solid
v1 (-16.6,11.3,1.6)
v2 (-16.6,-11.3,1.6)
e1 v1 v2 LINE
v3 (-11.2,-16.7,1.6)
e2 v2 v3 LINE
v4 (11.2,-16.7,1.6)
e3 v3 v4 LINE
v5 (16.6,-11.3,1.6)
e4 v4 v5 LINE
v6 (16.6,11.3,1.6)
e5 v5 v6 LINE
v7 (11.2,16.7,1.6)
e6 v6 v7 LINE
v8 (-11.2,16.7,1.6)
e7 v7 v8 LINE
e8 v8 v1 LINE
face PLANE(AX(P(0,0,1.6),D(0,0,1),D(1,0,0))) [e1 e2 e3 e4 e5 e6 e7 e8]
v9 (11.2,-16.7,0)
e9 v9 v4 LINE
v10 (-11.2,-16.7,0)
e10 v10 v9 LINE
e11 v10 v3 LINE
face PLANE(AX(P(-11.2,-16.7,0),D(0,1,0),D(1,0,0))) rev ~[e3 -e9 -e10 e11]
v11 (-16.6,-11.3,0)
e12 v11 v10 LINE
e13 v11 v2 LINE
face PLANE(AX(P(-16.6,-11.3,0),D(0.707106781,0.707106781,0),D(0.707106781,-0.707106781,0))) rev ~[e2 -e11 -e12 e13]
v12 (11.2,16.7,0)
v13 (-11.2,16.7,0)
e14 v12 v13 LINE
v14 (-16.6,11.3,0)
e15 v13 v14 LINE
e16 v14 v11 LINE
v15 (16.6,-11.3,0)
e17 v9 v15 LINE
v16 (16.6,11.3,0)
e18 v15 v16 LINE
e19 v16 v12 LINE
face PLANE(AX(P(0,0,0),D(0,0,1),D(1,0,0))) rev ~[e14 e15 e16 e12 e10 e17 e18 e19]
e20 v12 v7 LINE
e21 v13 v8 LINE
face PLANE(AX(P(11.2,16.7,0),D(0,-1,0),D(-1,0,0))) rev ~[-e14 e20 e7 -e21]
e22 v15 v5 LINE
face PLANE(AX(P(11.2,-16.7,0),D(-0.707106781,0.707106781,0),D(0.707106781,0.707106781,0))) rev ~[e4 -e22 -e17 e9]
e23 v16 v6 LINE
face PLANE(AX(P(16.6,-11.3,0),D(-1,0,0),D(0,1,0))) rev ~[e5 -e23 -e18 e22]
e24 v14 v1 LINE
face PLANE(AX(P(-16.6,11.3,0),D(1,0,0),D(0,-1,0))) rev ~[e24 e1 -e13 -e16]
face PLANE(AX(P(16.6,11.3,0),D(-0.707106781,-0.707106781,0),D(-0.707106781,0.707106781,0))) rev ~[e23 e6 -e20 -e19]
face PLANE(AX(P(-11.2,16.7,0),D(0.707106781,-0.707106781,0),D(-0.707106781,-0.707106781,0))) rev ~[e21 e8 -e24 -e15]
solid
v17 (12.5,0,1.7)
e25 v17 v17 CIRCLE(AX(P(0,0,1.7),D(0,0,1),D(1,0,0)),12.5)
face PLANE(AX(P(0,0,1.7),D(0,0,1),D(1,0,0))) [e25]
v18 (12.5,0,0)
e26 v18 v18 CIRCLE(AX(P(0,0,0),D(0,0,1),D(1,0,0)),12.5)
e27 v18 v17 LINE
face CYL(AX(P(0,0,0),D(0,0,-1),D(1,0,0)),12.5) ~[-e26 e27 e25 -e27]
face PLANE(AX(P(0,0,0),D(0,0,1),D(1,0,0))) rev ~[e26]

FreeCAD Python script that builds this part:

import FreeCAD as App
import Part
import Sketcher

V = App.Vector
Q = App.Units.Quantity


def add_polygon(sketch, points):
    """Adds a closed chain of lines whose ends are joined by coincident constraints."""
    first, n = sketch.GeometryCount, len(points)
    for a, b in zip(points, points[1:] + points[:1]):
        sketch.addGeometry(Part.LineSegment(App.Vector(*a, 0), App.Vector(*b, 0)), False)
    for i in range(n):
        sketch.addConstraint(Sketcher.Constraint("Coincident", first + i, 2, first + (i + 1) % n, 1))

doc = App.newDocument("Part")
body = doc.addObject("PartDesign::Body", "Body")

# Sketch on XY plane
sketch1 = body.newObject("Sketcher::SketchObject", "Sketch")
sketch1.AttachmentSupport = (doc.getObject("XY_Plane"), [""])
sketch1.MapMode = "FlatFace"
add_polygon(sketch1, [(11, 17), (-11, 17), (-17, 11), (-17, -11), (-11, -17), (11, -17), (17, -11), (17, 11)])  # lines 0-7
sketch1.addConstraint([
    Sketcher.Constraint("Horizontal", 0),
    Sketcher.Constraint("Vertical", 2),
    Sketcher.Constraint("Horizontal", 4),
    Sketcher.Constraint("Vertical", 6),
    Sketcher.Constraint("Symmetric", 0, 2, 4, 2, -1, 1),
    Sketcher.Constraint("Symmetric", 1, 2, 5, 2, -1, 1),
    Sketcher.Constraint("Perpendicular", 1, 3),
    Sketcher.Constraint("Perpendicular", 5, 7),
    Sketcher.Constraint("Horizontal", 2, 2, 5, 2),
    Sketcher.Constraint("Horizontal", 1, 2, 6, 2),
    Sketcher.Constraint("Vertical", 0, 2, 3, 2),
    Sketcher.Constraint("DistanceX", 0, 2, 0, 1, Q("22.4 mm")),
    Sketcher.Constraint("DistanceY", 2, 2, 2, 1, Q("22.6 mm")),
    Sketcher.Constraint("DistanceY", 2, 2, 0, 2, Q("28 mm")),
])
pad1 = body.newObject("PartDesign::Pad", "Pad")
pad1.Profile = sketch1
pad1.Length = 1.6
body2 = doc.addObject("PartDesign::Body", "Body001")

# Sketch on XY plane
sketch2 = body2.newObject("Sketcher::SketchObject", "Sketch001")
sketch2.AttachmentSupport = (doc.getObject("XY_Plane001"), [""])
sketch2.MapMode = "FlatFace"
sketch2.addGeometry(Part.Circle(V(0, 0, 0), V(0, 0, 1), 12), False)
sketch2.addConstraint([
    Sketcher.Constraint("Coincident", 0, 3, -1, 1),
    Sketcher.Constraint("Diameter", 0, Q("25 mm")),
])
pad2 = body2.newObject("PartDesign::Pad", "Pad001")
pad2.Profile = sketch2
pad2.Length = 1.7

doc.recompute()
